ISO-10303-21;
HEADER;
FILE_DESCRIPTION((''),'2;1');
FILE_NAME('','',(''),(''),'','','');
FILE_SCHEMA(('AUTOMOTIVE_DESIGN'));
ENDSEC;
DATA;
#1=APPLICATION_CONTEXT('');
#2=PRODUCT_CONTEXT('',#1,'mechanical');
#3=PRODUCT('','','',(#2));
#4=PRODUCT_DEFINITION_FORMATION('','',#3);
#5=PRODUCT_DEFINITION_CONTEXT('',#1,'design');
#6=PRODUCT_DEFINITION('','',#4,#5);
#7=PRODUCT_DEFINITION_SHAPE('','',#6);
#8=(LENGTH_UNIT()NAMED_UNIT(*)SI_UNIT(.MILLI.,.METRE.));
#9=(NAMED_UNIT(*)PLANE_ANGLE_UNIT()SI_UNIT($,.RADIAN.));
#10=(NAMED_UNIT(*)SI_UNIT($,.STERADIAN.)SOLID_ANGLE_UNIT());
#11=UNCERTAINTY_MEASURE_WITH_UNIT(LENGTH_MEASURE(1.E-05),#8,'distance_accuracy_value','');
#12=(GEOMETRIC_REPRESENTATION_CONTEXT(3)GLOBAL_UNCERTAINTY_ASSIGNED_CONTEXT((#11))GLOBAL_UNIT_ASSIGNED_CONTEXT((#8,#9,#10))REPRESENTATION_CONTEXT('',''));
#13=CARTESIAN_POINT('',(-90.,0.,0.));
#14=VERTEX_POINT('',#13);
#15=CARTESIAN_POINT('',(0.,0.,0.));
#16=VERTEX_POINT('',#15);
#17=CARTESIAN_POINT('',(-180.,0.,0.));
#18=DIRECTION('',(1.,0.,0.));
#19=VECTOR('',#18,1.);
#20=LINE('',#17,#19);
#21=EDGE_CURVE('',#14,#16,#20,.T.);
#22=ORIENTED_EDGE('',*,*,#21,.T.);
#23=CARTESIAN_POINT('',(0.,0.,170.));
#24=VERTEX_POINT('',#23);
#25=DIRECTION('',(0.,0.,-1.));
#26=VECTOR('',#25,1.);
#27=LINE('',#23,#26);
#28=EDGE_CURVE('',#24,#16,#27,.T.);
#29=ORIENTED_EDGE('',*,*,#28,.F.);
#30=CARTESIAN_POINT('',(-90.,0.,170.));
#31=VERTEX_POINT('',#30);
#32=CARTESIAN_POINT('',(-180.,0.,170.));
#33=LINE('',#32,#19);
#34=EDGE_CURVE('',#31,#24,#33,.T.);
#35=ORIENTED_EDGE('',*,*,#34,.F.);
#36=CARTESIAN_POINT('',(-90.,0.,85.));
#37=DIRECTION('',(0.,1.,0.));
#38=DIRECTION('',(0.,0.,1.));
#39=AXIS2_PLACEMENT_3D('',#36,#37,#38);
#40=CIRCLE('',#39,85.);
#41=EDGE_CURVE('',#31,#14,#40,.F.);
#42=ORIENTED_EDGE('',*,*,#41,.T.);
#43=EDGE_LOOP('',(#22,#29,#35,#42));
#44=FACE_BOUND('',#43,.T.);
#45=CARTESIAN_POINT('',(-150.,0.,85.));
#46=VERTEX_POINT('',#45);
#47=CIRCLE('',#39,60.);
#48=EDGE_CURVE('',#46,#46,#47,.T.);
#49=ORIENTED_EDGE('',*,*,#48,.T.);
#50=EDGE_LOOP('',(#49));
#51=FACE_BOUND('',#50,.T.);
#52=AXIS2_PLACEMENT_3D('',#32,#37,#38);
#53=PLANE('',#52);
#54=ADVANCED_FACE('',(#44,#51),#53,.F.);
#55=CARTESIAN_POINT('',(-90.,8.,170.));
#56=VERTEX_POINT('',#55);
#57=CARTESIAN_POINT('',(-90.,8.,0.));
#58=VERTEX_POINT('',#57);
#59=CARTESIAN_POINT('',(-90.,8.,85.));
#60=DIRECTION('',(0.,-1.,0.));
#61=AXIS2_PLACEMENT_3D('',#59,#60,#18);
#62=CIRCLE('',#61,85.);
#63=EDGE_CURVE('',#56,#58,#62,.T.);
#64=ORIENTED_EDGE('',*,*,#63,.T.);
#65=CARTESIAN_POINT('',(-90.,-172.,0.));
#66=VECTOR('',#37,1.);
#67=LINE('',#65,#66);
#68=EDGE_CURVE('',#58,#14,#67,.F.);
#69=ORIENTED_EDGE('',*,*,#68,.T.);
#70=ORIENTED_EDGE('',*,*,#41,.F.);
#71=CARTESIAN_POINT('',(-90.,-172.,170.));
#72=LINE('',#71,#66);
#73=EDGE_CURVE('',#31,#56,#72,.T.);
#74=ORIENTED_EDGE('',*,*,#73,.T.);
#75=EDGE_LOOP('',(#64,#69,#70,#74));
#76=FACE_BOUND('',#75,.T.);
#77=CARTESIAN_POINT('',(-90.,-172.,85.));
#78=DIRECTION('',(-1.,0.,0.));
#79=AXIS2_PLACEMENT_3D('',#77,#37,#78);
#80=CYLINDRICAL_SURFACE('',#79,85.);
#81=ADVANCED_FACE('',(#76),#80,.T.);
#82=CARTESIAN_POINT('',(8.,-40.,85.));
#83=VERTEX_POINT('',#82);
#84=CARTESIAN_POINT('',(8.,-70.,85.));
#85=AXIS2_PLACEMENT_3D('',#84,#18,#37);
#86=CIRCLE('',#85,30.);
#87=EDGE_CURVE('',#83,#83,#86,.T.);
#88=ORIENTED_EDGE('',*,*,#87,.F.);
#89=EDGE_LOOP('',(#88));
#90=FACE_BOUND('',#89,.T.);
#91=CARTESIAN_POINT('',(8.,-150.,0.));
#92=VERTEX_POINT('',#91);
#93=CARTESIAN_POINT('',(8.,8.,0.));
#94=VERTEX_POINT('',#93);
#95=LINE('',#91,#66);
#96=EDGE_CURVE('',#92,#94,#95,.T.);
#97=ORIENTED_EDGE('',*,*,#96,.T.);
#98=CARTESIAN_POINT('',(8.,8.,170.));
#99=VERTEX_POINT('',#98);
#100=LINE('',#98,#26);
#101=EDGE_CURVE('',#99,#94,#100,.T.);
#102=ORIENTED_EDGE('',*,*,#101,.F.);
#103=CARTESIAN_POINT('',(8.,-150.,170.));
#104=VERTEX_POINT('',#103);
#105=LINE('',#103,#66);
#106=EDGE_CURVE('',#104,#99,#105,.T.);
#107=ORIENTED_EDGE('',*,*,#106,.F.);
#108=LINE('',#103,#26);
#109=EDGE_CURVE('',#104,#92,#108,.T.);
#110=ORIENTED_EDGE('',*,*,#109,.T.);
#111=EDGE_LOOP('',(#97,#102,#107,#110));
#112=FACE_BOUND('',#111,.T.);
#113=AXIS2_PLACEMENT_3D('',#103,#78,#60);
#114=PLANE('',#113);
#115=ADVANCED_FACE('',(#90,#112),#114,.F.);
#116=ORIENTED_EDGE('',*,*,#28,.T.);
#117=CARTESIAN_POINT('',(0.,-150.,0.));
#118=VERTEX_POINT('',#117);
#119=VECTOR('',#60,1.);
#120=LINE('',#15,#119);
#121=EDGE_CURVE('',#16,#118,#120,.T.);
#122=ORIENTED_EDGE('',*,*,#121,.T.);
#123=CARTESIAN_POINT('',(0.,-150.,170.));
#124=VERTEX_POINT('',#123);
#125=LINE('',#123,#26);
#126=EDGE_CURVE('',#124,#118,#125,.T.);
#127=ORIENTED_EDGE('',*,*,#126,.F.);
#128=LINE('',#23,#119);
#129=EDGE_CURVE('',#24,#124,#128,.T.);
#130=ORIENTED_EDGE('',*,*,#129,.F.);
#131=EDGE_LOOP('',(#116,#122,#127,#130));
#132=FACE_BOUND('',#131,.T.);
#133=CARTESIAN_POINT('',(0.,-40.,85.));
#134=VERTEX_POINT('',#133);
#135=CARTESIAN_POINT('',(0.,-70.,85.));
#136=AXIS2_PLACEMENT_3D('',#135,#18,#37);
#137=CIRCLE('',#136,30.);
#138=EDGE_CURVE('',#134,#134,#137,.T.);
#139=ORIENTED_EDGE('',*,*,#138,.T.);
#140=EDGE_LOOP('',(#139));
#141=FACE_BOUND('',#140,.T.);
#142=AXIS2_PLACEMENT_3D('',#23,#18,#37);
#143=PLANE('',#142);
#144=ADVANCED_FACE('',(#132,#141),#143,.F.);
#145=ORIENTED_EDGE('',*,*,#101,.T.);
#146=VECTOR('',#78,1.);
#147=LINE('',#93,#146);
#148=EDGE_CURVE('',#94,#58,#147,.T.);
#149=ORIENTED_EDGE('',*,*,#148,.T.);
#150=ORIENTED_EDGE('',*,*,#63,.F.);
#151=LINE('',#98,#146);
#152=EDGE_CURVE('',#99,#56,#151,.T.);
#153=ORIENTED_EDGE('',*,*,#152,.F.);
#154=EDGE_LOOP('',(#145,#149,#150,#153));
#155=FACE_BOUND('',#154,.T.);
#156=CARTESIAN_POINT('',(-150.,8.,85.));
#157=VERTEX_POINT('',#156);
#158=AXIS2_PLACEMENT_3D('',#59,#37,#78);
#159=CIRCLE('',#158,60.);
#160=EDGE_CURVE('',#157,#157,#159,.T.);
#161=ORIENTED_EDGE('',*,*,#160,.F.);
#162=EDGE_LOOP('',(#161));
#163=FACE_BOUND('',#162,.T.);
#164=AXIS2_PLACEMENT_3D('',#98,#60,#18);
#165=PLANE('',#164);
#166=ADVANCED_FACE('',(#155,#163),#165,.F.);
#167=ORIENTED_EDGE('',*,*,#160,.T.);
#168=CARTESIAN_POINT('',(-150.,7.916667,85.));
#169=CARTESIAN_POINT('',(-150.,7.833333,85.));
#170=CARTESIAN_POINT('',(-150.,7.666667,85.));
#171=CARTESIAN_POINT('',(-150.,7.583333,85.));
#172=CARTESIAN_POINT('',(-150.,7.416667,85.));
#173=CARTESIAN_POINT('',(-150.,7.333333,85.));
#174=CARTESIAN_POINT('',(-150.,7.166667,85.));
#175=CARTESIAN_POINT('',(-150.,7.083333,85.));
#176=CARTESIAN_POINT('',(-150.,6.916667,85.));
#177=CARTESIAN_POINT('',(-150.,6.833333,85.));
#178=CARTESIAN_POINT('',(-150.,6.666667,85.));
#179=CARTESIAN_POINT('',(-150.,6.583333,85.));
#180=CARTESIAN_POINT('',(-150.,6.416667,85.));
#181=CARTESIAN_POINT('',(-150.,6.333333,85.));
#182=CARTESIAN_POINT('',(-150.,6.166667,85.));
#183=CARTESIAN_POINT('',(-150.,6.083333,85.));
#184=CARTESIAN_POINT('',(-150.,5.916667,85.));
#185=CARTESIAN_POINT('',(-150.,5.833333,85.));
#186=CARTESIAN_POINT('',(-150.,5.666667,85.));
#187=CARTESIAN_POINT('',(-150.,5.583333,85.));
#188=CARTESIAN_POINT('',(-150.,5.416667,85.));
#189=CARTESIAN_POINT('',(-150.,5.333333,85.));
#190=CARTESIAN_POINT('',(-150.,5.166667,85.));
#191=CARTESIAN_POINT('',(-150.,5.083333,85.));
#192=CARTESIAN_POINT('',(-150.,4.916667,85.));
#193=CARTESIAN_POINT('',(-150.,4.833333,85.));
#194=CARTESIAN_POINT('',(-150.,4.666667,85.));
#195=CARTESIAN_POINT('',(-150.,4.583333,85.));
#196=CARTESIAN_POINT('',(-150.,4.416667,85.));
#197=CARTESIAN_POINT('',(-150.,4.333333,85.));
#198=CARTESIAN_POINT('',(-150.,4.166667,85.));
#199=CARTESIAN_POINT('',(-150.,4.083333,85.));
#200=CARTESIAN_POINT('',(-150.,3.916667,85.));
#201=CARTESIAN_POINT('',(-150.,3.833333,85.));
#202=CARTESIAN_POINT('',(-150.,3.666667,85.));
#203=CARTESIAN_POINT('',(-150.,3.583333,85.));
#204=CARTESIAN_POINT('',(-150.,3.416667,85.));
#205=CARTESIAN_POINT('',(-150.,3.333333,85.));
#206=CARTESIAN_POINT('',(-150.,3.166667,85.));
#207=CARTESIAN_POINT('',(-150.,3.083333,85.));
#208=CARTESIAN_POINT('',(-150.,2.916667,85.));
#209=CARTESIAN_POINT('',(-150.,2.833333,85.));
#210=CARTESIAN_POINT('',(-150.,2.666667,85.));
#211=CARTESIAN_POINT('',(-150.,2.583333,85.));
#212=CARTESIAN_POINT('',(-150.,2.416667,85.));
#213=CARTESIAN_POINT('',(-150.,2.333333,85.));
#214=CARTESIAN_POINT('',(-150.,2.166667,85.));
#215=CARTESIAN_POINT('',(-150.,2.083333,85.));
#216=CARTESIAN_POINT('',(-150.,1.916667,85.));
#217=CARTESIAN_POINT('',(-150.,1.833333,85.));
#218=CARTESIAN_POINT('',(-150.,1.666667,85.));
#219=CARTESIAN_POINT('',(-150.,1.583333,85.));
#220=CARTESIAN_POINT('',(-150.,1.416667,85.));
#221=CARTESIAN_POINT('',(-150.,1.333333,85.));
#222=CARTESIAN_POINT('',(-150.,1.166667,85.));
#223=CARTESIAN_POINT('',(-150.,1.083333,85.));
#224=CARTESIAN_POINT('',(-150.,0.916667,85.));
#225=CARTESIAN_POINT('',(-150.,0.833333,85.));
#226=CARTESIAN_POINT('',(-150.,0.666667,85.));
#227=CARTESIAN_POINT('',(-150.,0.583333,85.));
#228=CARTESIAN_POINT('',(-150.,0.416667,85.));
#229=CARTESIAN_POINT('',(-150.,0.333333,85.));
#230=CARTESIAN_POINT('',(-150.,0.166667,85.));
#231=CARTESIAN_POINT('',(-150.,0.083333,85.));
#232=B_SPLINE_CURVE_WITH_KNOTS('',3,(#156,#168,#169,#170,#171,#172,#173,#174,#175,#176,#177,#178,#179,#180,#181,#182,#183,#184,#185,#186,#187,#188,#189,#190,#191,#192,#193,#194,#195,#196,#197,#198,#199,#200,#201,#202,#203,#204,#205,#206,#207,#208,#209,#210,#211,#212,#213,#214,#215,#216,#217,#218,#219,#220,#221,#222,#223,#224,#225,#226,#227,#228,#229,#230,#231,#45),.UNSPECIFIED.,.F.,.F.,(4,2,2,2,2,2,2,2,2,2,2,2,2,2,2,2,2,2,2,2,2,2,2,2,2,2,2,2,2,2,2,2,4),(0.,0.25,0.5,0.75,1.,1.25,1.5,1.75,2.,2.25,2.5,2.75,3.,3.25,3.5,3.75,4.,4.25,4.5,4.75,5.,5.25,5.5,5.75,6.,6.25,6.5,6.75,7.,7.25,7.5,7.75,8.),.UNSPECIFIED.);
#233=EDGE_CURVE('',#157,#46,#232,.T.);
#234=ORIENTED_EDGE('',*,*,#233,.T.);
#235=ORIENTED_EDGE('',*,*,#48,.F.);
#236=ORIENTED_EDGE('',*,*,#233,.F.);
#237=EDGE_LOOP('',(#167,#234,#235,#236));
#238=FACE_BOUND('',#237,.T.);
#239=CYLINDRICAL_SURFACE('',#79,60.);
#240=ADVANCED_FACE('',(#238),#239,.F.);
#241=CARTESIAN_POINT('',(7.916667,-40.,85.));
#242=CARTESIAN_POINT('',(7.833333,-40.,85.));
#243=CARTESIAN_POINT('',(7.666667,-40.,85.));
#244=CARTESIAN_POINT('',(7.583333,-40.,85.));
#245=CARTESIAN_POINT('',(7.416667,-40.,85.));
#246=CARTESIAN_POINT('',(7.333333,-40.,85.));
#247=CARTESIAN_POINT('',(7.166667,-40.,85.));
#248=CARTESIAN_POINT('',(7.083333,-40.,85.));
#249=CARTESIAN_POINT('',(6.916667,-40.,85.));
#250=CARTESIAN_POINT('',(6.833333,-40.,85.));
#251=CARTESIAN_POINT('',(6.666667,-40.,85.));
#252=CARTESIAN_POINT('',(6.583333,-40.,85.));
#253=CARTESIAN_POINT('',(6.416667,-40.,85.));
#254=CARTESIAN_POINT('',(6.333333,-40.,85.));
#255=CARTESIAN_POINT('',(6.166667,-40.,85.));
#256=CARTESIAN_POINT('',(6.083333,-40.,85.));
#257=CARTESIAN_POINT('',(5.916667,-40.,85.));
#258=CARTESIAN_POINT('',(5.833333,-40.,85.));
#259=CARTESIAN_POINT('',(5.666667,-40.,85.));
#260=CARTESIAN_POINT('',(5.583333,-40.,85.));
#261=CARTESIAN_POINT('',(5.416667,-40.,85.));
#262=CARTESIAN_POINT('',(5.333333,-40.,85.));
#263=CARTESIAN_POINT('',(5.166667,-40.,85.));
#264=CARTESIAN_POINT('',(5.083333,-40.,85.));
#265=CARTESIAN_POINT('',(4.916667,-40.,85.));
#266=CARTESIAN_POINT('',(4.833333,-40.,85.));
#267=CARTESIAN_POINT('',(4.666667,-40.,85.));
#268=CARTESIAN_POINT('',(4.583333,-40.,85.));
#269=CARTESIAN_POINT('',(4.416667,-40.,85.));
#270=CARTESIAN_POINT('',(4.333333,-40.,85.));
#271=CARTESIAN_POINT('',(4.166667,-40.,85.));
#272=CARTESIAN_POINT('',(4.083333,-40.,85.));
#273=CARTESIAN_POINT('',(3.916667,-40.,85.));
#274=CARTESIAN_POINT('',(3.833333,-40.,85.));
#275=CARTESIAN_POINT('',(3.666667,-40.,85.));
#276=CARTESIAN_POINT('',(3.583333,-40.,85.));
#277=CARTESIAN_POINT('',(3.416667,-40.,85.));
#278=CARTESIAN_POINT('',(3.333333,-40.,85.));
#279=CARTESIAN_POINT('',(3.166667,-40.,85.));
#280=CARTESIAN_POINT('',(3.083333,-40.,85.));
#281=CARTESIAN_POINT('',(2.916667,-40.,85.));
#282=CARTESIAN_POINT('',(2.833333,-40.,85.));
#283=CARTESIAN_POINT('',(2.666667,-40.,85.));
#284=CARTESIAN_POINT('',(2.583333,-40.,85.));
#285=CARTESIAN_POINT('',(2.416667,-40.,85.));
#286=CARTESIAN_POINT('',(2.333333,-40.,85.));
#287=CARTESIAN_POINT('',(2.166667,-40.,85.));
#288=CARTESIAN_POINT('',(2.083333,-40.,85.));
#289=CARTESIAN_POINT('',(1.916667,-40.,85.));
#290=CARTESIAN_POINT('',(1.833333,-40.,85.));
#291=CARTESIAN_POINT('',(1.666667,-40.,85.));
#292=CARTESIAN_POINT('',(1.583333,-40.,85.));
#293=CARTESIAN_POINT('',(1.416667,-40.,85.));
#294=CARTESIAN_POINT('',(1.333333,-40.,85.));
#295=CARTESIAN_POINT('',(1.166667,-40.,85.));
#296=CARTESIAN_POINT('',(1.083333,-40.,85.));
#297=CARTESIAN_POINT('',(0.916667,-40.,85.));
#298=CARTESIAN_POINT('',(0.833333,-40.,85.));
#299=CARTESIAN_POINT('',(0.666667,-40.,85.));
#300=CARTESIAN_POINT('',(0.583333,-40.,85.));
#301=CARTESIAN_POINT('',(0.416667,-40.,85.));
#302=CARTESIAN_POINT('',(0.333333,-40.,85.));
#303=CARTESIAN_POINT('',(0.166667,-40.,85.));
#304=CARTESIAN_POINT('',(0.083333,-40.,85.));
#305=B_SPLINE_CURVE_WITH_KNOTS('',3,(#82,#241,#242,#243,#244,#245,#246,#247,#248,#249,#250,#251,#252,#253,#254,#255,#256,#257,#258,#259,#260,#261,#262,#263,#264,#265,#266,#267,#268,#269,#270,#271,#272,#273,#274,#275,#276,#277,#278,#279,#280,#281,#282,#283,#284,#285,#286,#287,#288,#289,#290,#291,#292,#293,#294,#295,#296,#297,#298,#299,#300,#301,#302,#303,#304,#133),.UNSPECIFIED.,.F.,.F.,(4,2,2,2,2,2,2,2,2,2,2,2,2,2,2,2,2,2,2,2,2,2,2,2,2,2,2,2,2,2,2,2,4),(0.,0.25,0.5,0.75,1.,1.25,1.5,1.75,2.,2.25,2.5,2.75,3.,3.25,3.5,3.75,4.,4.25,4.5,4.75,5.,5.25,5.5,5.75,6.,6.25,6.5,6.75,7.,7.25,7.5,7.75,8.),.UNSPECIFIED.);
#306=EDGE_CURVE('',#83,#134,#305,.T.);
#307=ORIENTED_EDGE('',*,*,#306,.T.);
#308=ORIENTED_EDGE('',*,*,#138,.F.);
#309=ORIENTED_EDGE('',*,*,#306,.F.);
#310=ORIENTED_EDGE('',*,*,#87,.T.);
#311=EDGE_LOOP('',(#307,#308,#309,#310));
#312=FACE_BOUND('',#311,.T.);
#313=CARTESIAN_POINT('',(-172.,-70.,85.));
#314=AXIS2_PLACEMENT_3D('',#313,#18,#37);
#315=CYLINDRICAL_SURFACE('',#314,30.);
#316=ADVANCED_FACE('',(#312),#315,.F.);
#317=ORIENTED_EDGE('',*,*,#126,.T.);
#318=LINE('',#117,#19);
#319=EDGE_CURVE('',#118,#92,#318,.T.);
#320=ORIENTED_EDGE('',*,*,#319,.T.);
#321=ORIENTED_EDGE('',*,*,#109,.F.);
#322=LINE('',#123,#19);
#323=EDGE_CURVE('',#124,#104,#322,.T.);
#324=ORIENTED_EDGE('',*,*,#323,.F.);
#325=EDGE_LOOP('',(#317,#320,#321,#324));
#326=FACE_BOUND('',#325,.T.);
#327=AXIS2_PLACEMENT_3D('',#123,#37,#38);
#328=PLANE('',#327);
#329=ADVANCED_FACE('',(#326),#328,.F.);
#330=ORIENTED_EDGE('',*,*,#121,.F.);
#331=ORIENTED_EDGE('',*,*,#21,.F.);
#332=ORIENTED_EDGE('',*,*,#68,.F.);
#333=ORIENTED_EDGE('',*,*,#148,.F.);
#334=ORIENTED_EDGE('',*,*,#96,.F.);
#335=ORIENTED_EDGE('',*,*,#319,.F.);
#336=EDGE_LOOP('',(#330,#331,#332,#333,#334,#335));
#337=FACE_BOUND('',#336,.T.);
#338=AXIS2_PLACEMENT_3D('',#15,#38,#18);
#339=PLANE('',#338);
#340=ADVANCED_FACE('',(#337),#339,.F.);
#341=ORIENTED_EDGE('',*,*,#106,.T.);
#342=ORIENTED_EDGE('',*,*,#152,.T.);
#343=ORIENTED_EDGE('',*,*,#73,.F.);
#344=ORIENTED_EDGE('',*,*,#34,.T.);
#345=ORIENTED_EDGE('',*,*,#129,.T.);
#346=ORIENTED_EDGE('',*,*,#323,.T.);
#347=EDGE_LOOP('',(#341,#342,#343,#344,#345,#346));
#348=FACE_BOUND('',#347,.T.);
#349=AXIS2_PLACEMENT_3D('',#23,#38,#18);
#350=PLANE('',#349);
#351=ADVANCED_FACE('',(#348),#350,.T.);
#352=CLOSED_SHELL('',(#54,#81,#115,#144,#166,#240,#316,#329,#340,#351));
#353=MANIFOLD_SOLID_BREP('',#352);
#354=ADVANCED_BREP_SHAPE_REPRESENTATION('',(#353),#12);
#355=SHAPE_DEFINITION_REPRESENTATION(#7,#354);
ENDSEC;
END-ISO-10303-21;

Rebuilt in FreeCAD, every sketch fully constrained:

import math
import FreeCAD as App
import Part
import Sketcher

V = App.Vector

doc = App.newDocument("Part")
body = doc.addObject("PartDesign::Body", "Body")

# Sketch on XY plane
sketch1 = body.newObject("Sketcher::SketchObject", "Sketch")
sketch1.AttachmentSupport = (doc.getObject("XY_Plane"), [""])
sketch1.MapMode = "FlatFace"
sketch1.addGeometry([
    Part.LineSegment(V(-180, 0, 0), V(0, 0, 0)),  # 0
    Part.LineSegment(V(0, 0, 0), V(0, -150, 0)),  # 1
    Part.LineSegment(V(0, -150, 0), V(8, -150, 0)),  # 2
    Part.LineSegment(V(8, -150, 0), V(8, 8, 0)),  # 3
    Part.LineSegment(V(8, 8, 0), V(-180, 8, 0)),  # 4
    Part.LineSegment(V(-180, 8, 0), V(-180, 0, 0)),  # 5
], False)
sketch1.addConstraint([
    Sketcher.Constraint("Coincident", 0, 2, 1, 1),
    Sketcher.Constraint("Coincident", 1, 2, 2, 1),
    Sketcher.Constraint("Coincident", 2, 2, 3, 1),
    Sketcher.Constraint("Coincident", 3, 2, 4, 1),
    Sketcher.Constraint("Coincident", 4, 2, 5, 1),
    Sketcher.Constraint("Coincident", 5, 2, 0, 1),
    Sketcher.Constraint("Horizontal", 0),
    Sketcher.Constraint("Vertical", 1),
    Sketcher.Constraint("Horizontal", 2),
    Sketcher.Constraint("Vertical", 3),
    Sketcher.Constraint("Horizontal", 4),
    Sketcher.Constraint("Vertical", 5),
    Sketcher.Constraint("Coincident", 0, 2, -1, 1),
    Sketcher.Constraint("Equal", 2, 5),
    Sketcher.Constraint("DistanceX", 0, 1, 0, 2, 180.0),
    Sketcher.Constraint("DistanceX", 2, 1, 2, 2, 8.0),
    Sketcher.Constraint("DistanceY", 1, 2, 1, 1, 150.0),
])
pad1 = body.newObject("PartDesign::Pad", "Pad")
pad1.Profile = sketch1
pad1.Length = 170

# Sketch on XZ plane
sketch2 = body.newObject("Sketcher::SketchObject", "Sketch001")
sketch2.AttachmentSupport = (doc.getObject("XZ_Plane"), [""])
sketch2.MapMode = "FlatFace"
sketch2.AttachmentOffset = App.Placement(V(0, 0, -8), App.Rotation())
sketch2.addGeometry([
    Part.Circle(V(-90, 85, 0), V(0, 0, 1), 60),  # 0
    Part.ArcOfCircle(Part.Circle(V(-90, 85, 0), V(0, 0, 1), 85), math.radians(90), math.radians(270)),  # 1
    Part.LineSegment(V(-90, 0, 0), V(-180, 0, 0)),  # 2
    Part.LineSegment(V(-180, 0, 0), V(-180, 170, 0)),  # 3
    Part.LineSegment(V(-180, 170, 0), V(-90, 170, 0)),  # 4
], False)
sketch2.addConstraint([
    Sketcher.Constraint("Tangent", 1, 2, 2, 1),
    Sketcher.Constraint("Coincident", 2, 2, 3, 1),
    Sketcher.Constraint("Coincident", 3, 2, 4, 1),
    Sketcher.Constraint("Tangent", 4, 2, 1, 1),
    Sketcher.Constraint("Horizontal", 2),
    Sketcher.Constraint("Vertical", 3),
    Sketcher.Constraint("Horizontal", 4),
    Sketcher.Constraint("Coincident", 1, 3, 0, 3),
    Sketcher.Constraint("PointOnObject", 1, 2, -1),
    Sketcher.Constraint("Diameter", 0, 120.0),
    Sketcher.Constraint("Radius", 1, 85.0),
    Sketcher.Constraint("DistanceX", 2, 2, 2, 1, 90.0),
    Sketcher.Constraint("DistanceX", 0, 3, -1, 1, 90.0),
])
pocket1 = body.newObject("PartDesign::Pocket", "Pocket")
pocket1.Profile = sketch2
pocket1.Length = 180
pocket1.Reversed = True

# Sketch on YZ plane
sketch3 = body.newObject("Sketcher::SketchObject", "Sketch002")
sketch3.AttachmentSupport = (doc.getObject("YZ_Plane"), [""])
sketch3.MapMode = "FlatFace"
sketch3.AttachmentOffset = App.Placement(V(0, 0, 8), App.Rotation())
sketch3.addGeometry(Part.Circle(V(-70, 85, 0), V(0, 0, 1), 30), False)
sketch3.addConstraint([
    Sketcher.Constraint("Diameter", 0, 60.0),
    Sketcher.Constraint("DistanceX", 0, 3, -1, 1, 70.0),
    Sketcher.Constraint("DistanceY", -1, 1, 0, 3, 85.0),
])
pocket2 = body.newObject("PartDesign::Pocket", "Pocket001")
pocket2.Profile = sketch3
pocket2.Length = 180

doc.recompute()
